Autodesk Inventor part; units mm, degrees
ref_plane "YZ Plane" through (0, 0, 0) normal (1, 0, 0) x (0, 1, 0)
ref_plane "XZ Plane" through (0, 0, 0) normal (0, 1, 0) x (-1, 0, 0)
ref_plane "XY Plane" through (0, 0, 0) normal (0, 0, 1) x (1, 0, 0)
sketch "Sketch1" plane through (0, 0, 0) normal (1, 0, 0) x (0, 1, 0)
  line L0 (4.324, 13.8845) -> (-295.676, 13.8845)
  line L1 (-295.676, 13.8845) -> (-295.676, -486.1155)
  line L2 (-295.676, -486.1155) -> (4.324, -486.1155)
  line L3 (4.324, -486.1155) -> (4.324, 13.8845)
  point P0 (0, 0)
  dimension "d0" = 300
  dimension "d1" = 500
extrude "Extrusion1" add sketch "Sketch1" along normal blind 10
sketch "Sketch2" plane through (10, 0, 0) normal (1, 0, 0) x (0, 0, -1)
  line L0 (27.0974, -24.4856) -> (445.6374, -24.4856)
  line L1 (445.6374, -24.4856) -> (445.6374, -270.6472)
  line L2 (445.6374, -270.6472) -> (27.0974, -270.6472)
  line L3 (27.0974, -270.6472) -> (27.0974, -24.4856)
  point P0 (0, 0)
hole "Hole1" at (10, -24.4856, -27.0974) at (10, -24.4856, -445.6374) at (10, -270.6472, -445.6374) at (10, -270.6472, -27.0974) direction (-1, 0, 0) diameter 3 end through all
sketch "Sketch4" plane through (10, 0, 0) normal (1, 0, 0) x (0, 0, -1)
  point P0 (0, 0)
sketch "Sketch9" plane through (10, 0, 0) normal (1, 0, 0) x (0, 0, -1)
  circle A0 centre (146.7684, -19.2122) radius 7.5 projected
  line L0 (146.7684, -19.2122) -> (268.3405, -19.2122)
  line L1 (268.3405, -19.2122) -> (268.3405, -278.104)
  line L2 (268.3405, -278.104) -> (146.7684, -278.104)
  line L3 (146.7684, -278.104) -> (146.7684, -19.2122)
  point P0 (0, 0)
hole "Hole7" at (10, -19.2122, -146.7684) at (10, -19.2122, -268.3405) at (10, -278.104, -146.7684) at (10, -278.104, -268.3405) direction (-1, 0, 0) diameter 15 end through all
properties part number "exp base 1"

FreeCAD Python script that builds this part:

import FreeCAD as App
import Part
import Sketcher
from FreeCAD import Vector


def add_polygon(sketch, points):
    """Adds a closed chain of lines whose ends are joined by coincident constraints."""
    first, n = sketch.GeometryCount, len(points)
    for a, b in zip(points, points[1:] + points[:1]):
        sketch.addGeometry(Part.LineSegment(App.Vector(*a, 0), App.Vector(*b, 0)), False)
    for i in range(n):
        sketch.addConstraint(Sketcher.Constraint("Coincident", first + i, 2, first + (i + 1) % n, 1))

doc = App.newDocument("Part")
body = doc.addObject("PartDesign::Body", "Body")

sketch1 = body.newObject("Sketcher::SketchObject", "Sketch")
sketch1.AttachmentSupport = (doc.getObject("YZ_Plane"), [""])
sketch1.MapMode = "FlatFace"
add_polygon(sketch1, [(4, -486), (4, 14), (-296, 14), (-296, -486)])
sketch1.addConstraint(Sketcher.Constraint("Vertical", 0))
sketch1.addConstraint(Sketcher.Constraint("Horizontal", 1))
sketch1.addConstraint(Sketcher.Constraint("Vertical", 2))
sketch1.addConstraint(Sketcher.Constraint("Horizontal", 3))
sketch1.addConstraint(Sketcher.Constraint("DistanceX", 1, 2, 1, 1, 300.0))
sketch1.addConstraint(Sketcher.Constraint("DistanceY", 0, 1, 0, 2, 500.0))
sketch1.addConstraint(Sketcher.Constraint("DistanceX", -1, 1, 0, 2, 4.324))
sketch1.addConstraint(Sketcher.Constraint("DistanceY", -1, 1, 0, 2, 13.8845))
pad1 = body.newObject("PartDesign::Pad", "Pad")
pad1.Profile = sketch1
pad1.Length = 10

sketch2 = body.newObject("Sketcher::SketchObject", "Sketch001")
sketch2.AttachmentSupport = (doc.getObject("YZ_Plane"), [""])
sketch2.MapMode = "FlatFace"
sketch2.AttachmentOffset = App.Placement(Vector(0, 0, 10), App.Rotation())
sketch2.addGeometry(Part.Circle(Vector(-24.5, -27.1, 0), Vector(0, 0, 1), 1.5), False)
sketch2.addGeometry(Part.Circle(Vector(-24.5, -445.6, 0), Vector(0, 0, 1), 1.5), False)
sketch2.addGeometry(Part.Circle(Vector(-270.6, -445.6, 0), Vector(0, 0, 1), 1.5), False)
sketch2.addGeometry(Part.Circle(Vector(-270.6, -27.1, 0), Vector(0, 0, 1), 1.5), False)
sketch2.addConstraint(Sketcher.Constraint("Equal", 0, 1))
sketch2.addConstraint(Sketcher.Constraint("Equal", 1, 2))
sketch2.addConstraint(Sketcher.Constraint("Equal", 2, 3))
sketch2.addConstraint(Sketcher.Constraint("Horizontal", 1, 3, 2, 3))
sketch2.addConstraint(Sketcher.Constraint("Horizontal", 0, 3, 3, 3))
sketch2.addConstraint(Sketcher.Constraint("Vertical", 0, 3, 1, 3))
sketch2.addConstraint(Sketcher.Constraint("Vertical", 2, 3, 3, 3))
sketch2.addConstraint(Sketcher.Constraint("Diameter", 0, 3.0))
sketch2.addConstraint(Sketcher.Constraint("DistanceY", 1, 3, 0, 3, 418.54))
sketch2.addConstraint(Sketcher.Constraint("DistanceX", 0, 3, -1, 1, 24.4856))
sketch2.addConstraint(Sketcher.Constraint("DistanceY", 0, 3, -1, 1, 27.0974))
sketch2.addConstraint(Sketcher.Constraint("DistanceX", 2, 3, -1, 1, 270.6472))
doc.recompute()
hole = body.newObject("PartDesign::Hole", "Hole")
hole.Profile = sketch2
hole.ThreadType = "None"
hole.Diameter = 3
hole.DepthType = "ThroughAll"

sketch3 = body.newObject("Sketcher::SketchObject", "Sketch002")
sketch3.AttachmentSupport = (doc.getObject("YZ_Plane"), [""])
sketch3.MapMode = "FlatFace"
sketch3.AttachmentOffset = App.Placement(Vector(0, 0, 10), App.Rotation())
sketch3.addGeometry(Part.Circle(Vector(-19, -147, 0), Vector(0, 0, 1), 8), False)
sketch3.addGeometry(Part.Circle(Vector(-19, -268, 0), Vector(0, 0, 1), 8), False)
sketch3.addGeometry(Part.Circle(Vector(-278, -147, 0), Vector(0, 0, 1), 8), False)
sketch3.addGeometry(Part.Circle(Vector(-278, -268, 0), Vector(0, 0, 1), 8), False)
sketch3.addConstraint(Sketcher.Constraint("Equal", 0, 1))
sketch3.addConstraint(Sketcher.Constraint("Equal", 1, 2))
sketch3.addConstraint(Sketcher.Constraint("Equal", 2, 3))
sketch3.addConstraint(Sketcher.Constraint("Horizontal", 0, 3, 2, 3))
sketch3.addConstraint(Sketcher.Constraint("Horizontal", 1, 3, 3, 3))
sketch3.addConstraint(Sketcher.Constraint("Vertical", 0, 3, 1, 3))
sketch3.addConstraint(Sketcher.Constraint("Vertical", 2, 3, 3, 3))
sketch3.addConstraint(Sketcher.Constraint("Diameter", 0, 15.0))
sketch3.addConstraint(Sketcher.Constraint("DistanceX", 2, 3, -1, 1, 278.104))
sketch3.addConstraint(Sketcher.Constraint("DistanceY", 1, 3, 0, 3, 121.572))
sketch3.addConstraint(Sketcher.Constraint("DistanceX", 0, 3, -1, 1, 19.2122))
sketch3.addConstraint(Sketcher.Constraint("DistanceY", 0, 3, -1, 1, 146.7684))
doc.recompute()
hole2 = body.newObject("PartDesign::Hole", "Hole001")
hole2.Profile = sketch3
hole2.ThreadType = "None"
hole2.Diameter = 15
hole2.DepthType = "ThroughAll"

doc.recompute()
